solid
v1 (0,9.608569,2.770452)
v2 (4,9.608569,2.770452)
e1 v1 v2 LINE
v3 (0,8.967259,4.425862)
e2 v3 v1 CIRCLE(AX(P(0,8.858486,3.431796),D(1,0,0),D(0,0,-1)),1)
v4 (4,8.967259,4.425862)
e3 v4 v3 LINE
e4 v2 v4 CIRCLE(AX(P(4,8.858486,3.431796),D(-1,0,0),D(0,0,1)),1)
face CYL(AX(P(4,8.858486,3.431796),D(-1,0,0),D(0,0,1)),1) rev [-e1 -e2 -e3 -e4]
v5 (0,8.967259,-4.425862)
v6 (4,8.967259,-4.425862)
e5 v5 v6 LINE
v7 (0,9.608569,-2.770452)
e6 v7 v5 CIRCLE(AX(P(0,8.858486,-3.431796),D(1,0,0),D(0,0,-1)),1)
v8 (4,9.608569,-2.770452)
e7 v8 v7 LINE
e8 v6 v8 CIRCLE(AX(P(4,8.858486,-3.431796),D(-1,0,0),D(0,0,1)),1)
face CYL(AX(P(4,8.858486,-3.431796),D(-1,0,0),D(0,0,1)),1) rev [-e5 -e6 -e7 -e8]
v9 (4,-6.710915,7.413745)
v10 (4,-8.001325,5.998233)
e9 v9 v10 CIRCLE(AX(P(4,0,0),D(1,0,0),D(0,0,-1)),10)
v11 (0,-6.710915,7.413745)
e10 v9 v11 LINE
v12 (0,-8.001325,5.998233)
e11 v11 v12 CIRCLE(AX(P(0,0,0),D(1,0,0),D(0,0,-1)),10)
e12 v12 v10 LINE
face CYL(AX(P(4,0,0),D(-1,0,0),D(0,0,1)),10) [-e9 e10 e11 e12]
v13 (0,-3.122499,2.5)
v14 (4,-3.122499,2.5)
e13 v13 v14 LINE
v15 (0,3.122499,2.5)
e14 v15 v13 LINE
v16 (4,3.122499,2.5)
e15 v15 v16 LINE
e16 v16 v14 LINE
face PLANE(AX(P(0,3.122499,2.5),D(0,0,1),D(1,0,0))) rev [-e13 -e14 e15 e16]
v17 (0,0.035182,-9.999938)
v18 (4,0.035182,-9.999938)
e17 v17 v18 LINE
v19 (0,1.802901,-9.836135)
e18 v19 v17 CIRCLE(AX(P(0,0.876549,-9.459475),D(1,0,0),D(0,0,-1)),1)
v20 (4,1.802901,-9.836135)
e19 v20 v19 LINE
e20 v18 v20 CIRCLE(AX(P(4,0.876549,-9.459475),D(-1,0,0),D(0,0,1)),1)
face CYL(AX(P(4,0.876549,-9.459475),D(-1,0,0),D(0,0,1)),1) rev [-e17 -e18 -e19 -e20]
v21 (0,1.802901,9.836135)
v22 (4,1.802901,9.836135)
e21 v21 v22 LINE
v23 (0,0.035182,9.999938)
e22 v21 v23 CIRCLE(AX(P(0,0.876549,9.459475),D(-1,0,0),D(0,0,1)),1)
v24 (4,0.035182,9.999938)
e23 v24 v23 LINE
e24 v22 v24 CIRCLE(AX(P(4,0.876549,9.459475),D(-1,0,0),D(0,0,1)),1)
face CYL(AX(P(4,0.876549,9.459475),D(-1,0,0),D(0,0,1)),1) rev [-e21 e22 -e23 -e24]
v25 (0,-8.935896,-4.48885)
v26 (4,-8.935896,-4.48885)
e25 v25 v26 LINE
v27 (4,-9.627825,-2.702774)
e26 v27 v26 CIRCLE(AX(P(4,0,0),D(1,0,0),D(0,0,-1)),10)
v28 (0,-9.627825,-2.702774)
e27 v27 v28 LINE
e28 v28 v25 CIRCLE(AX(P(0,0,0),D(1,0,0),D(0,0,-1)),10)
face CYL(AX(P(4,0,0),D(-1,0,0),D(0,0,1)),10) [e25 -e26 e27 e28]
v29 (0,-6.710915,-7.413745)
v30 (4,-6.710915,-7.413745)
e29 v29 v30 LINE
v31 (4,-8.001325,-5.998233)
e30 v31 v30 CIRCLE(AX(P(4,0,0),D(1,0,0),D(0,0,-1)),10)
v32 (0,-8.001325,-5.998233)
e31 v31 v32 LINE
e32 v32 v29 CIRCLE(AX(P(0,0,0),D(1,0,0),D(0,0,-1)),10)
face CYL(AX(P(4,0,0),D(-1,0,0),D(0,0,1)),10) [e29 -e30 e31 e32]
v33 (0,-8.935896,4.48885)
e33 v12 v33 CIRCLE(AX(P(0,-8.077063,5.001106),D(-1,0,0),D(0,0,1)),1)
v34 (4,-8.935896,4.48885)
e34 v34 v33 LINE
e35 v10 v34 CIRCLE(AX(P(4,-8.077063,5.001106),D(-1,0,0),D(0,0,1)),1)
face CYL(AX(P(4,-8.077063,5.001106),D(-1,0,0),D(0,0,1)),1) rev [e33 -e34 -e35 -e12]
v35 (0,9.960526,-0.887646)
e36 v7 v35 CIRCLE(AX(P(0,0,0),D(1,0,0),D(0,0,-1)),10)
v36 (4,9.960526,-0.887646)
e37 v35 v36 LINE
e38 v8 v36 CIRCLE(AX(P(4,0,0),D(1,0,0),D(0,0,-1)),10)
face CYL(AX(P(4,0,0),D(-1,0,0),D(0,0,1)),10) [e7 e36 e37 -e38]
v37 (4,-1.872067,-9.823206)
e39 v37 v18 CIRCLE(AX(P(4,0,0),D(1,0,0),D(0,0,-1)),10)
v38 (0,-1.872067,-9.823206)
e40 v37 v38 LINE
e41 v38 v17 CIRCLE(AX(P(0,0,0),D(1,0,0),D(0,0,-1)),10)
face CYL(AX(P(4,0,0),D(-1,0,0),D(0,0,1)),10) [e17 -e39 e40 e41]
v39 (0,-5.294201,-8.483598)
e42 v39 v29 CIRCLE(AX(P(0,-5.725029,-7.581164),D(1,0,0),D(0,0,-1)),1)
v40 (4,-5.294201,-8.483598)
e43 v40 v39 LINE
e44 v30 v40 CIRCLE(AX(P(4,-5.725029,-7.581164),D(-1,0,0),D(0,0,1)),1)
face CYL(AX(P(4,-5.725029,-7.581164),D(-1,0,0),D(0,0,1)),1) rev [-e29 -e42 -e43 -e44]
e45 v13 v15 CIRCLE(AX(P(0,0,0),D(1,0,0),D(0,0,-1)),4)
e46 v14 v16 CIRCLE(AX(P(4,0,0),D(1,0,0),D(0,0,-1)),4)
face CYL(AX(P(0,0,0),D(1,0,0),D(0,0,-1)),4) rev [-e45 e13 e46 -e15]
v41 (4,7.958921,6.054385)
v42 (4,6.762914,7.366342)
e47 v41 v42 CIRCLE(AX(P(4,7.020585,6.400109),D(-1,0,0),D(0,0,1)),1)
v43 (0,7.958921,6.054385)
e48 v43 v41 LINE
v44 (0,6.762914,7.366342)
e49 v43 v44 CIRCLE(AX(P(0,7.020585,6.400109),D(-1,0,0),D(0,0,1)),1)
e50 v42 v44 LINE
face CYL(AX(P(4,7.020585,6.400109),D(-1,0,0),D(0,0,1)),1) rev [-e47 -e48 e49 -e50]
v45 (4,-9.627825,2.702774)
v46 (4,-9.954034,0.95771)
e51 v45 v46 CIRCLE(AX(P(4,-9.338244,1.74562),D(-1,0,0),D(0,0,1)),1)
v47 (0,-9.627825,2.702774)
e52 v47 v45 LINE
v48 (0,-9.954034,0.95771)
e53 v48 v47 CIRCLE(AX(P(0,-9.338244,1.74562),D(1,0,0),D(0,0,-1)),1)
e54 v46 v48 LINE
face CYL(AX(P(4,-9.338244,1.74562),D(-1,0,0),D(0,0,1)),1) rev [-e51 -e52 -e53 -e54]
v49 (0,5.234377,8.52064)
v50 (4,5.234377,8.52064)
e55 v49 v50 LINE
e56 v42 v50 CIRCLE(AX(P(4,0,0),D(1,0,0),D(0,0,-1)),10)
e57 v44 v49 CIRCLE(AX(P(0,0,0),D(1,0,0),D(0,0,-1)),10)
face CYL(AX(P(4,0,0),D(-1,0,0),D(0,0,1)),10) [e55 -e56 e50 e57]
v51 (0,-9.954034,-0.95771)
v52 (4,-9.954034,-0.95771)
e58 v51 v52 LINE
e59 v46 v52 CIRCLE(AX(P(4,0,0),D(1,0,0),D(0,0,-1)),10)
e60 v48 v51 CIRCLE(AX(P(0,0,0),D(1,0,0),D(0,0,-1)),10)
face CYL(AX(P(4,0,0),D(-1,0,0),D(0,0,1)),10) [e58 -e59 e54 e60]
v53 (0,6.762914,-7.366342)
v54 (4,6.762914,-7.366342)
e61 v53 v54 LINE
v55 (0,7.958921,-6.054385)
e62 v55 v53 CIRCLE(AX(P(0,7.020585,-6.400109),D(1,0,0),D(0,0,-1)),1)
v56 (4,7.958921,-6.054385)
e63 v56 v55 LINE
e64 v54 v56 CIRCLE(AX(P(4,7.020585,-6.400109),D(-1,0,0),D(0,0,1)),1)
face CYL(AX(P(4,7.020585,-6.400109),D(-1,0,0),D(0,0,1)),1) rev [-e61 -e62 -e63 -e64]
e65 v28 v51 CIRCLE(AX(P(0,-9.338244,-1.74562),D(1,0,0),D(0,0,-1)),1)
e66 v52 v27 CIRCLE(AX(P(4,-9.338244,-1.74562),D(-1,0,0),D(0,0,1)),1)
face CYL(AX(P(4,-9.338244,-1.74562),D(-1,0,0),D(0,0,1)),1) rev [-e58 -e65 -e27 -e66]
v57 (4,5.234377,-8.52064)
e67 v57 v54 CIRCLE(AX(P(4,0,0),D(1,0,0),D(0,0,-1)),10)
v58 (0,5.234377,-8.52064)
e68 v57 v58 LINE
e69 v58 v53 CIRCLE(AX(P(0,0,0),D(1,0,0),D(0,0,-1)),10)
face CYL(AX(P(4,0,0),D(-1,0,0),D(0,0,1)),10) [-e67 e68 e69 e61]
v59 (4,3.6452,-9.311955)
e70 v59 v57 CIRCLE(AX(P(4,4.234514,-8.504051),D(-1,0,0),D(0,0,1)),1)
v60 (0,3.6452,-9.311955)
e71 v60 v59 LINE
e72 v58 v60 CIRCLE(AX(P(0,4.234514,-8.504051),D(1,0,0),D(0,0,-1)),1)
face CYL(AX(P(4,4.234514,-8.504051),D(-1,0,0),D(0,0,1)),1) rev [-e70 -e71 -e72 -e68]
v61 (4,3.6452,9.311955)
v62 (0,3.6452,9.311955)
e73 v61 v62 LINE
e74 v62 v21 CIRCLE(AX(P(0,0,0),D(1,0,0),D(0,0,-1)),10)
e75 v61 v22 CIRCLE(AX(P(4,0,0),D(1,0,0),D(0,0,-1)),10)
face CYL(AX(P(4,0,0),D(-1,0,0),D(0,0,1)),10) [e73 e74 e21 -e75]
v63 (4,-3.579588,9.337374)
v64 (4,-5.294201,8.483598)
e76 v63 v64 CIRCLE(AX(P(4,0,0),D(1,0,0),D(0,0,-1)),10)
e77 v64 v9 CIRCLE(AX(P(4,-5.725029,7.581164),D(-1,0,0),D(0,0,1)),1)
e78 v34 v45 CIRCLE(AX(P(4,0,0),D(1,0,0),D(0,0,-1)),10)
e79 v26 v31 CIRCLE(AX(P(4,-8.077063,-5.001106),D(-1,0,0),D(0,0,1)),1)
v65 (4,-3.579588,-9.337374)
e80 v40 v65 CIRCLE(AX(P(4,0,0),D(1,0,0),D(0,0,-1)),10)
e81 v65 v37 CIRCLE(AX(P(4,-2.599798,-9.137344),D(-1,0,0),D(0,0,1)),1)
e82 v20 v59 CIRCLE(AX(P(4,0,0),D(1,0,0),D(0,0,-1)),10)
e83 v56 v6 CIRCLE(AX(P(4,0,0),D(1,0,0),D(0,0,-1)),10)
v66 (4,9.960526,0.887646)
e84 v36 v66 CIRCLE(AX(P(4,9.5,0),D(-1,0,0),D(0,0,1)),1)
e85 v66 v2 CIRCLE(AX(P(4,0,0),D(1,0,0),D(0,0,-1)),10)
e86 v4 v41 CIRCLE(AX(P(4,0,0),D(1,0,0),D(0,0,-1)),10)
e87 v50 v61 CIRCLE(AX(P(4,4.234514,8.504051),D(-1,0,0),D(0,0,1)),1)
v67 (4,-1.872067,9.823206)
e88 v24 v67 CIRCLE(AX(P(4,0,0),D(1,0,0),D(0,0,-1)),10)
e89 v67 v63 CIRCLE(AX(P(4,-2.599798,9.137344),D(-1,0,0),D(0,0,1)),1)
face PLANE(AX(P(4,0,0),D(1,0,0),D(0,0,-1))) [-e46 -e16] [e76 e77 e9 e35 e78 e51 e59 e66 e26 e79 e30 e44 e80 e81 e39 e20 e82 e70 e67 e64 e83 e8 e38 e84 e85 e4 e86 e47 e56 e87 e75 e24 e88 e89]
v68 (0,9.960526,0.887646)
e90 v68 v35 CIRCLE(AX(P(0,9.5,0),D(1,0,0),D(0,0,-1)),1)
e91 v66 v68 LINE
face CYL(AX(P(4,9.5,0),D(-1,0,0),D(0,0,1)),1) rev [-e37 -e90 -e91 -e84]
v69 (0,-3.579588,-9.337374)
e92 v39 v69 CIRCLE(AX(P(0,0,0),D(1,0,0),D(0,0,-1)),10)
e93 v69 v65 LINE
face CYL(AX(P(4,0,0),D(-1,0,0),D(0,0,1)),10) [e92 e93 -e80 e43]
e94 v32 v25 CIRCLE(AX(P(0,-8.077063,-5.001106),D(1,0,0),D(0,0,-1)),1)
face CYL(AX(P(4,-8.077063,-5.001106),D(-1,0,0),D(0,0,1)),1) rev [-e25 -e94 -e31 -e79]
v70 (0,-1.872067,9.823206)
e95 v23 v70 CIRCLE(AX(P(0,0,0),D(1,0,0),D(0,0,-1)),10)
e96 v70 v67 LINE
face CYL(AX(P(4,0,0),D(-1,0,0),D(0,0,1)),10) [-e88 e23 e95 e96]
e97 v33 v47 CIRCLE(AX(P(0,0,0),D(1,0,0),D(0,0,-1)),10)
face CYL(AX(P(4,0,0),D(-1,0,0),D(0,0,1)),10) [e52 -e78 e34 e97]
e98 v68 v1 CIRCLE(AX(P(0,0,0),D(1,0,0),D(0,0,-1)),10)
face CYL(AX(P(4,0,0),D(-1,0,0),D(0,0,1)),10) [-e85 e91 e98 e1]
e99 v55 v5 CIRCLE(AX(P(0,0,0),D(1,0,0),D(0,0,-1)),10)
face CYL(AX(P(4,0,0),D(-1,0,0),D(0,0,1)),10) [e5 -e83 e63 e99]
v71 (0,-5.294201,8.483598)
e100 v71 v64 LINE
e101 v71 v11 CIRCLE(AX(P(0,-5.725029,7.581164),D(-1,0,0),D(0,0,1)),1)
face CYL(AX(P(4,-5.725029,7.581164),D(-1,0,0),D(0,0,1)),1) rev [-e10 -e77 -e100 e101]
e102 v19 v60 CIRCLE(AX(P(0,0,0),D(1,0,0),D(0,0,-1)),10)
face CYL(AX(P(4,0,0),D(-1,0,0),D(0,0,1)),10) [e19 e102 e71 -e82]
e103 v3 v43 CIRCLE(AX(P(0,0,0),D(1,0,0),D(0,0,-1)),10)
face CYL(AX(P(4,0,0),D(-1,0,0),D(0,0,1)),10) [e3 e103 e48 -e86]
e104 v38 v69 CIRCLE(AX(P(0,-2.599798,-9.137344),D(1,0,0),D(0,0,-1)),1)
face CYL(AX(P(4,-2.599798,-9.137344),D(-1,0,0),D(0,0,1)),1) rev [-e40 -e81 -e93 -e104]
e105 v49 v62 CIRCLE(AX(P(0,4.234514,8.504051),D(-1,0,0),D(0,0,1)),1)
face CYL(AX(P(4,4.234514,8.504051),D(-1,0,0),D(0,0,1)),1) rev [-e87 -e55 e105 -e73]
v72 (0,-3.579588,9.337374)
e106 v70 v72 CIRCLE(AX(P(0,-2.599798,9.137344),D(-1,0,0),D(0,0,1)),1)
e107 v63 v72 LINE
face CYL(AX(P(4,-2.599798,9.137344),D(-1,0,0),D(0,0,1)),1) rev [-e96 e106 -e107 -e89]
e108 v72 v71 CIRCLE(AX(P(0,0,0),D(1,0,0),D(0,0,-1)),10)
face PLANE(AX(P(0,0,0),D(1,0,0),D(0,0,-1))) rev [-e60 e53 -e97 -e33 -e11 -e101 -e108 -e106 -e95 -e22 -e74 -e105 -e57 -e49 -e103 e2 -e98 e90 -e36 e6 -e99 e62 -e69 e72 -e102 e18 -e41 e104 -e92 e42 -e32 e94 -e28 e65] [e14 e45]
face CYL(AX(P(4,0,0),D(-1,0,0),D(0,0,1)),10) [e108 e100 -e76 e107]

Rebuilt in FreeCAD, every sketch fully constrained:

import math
import FreeCAD as App
import Part
import Sketcher

V = App.Vector

doc = App.newDocument("Part")
body = doc.addObject("PartDesign::Body", "Body")

# Sketch on YZ plane
sketch1 = body.newObject("Sketcher::SketchObject", "Sketch")
sketch1.AttachmentSupport = (doc.getObject("YZ_Plane"), [""])
sketch1.MapMode = "FlatFace"
sketch1.addGeometry(Part.Circle(V(0, 0, 0), V(0, 0, 1), 10), False)
sketch1.addConstraint([
    Sketcher.Constraint("Coincident", 0, 3, -1, 1),
    Sketcher.Constraint("Diameter", 0, 20.0),
])
pad1 = body.newObject("PartDesign::Pad", "Pad")
pad1.Profile = sketch1
pad1.Length = 4

# Sketch on YZ plane
sketch2 = body.newObject("Sketcher::SketchObject", "Sketch001")
sketch2.AttachmentSupport = (doc.getObject("YZ_Plane"), [""])
sketch2.MapMode = "FlatFace"
sketch2.addGeometry([
    Part.Circle(V(9.5, 0, 0), V(0, 0, 1), 1),  # 0
    Part.Circle(V(8.9, 3.4, 0), V(0, 0, 1), 1),  # 1
    Part.Circle(V(7, 6.4, 0), V(0, 0, 1), 1),  # 2
    Part.Circle(V(4.2, 8.5, 0), V(0, 0, 1), 1),  # 3
    Part.Circle(V(0.9, 9.5, 0), V(0, 0, 1), 1),  # 4
    Part.Circle(V(-2.6, 9.1, 0), V(0, 0, 1), 1),  # 5
    Part.Circle(V(-5.7, 7.6, 0), V(0, 0, 1), 1),  # 6
    Part.Circle(V(-8.1, 5, 0), V(0, 0, 1), 1),  # 7
    Part.Circle(V(-9.3, 1.7, 0), V(0, 0, 1), 1),  # 8
    Part.Circle(V(-9.3, -1.7, 0), V(0, 0, 1), 1),  # 9
    Part.Circle(V(-8.1, -5, 0), V(0, 0, 1), 1),  # 10
    Part.Circle(V(-5.7, -7.6, 0), V(0, 0, 1), 1),  # 11
    Part.Circle(V(-2.6, -9.1, 0), V(0, 0, 1), 1),  # 12
    Part.Circle(V(0.9, -9.5, 0), V(0, 0, 1), 1),  # 13
    Part.Circle(V(4.2, -8.5, 0), V(0, 0, 1), 1),  # 14
    Part.Circle(V(7, -6.4, 0), V(0, 0, 1), 1),  # 15
    Part.Circle(V(8.9, -3.4, 0), V(0, 0, 1), 1),  # 16
], False)
sketch2.addConstraint([
    Sketcher.Constraint("Equal", 0, 1),
    Sketcher.Constraint("Equal", 1, 2),
    Sketcher.Constraint("Equal", 2, 3),
    Sketcher.Constraint("Equal", 3, 4),
    Sketcher.Constraint("Equal", 4, 5),
    Sketcher.Constraint("Equal", 5, 6),
    Sketcher.Constraint("Equal", 6, 7),
    Sketcher.Constraint("Equal", 7, 8),
    Sketcher.Constraint("Equal", 8, 9),
    Sketcher.Constraint("Equal", 9, 10),
    Sketcher.Constraint("Equal", 10, 11),
    Sketcher.Constraint("Equal", 11, 12),
    Sketcher.Constraint("Equal", 12, 13),
    Sketcher.Constraint("Equal", 13, 14),
    Sketcher.Constraint("Equal", 14, 15),
    Sketcher.Constraint("Equal", 15, 16),
    Sketcher.Constraint("Symmetric", 8, 3, 9, 3, -1),
    Sketcher.Constraint("Symmetric", 7, 3, 10, 3, -1),
    Sketcher.Constraint("Symmetric", 6, 3, 11, 3, -1),
    Sketcher.Constraint("Symmetric", 5, 3, 12, 3, -1),
    Sketcher.Constraint("Symmetric", 4, 3, 13, 3, -1),
    Sketcher.Constraint("Symmetric", 3, 3, 14, 3, -1),
    Sketcher.Constraint("Symmetric", 2, 3, 15, 3, -1),
    Sketcher.Constraint("Symmetric", 1, 3, 16, 3, -1),
    Sketcher.Constraint("PointOnObject", 0, 3, -1),
    Sketcher.Constraint("Diameter", 0, 2.0),
    Sketcher.Constraint("DistanceX", -1, 1, 0, 3, 9.5),
    Sketcher.Constraint("DistanceX", 5, 3, -1, 1, 2.599798),
    Sketcher.Constraint("DistanceX", 2, 3, 1, 3, 1.837901),
    Sketcher.Constraint("DistanceY", -1, 1, 2, 3, 6.400109),
    Sketcher.Constraint("DistanceY", -1, 1, 3, 3, 8.504051),
    Sketcher.Constraint("DistanceX", -1, 1, 4, 3, 0.876549),
    Sketcher.Constraint("DistanceX", 6, 3, -1, 1, 5.725029),
    Sketcher.Constraint("DistanceY", -1, 1, 8, 3, 1.74562),
    Sketcher.Constraint("DistanceX", 3, 3, 2, 3, 2.78607),
    Sketcher.Constraint("DistanceY", 1, 3, 4, 3, 6.027679),
    Sketcher.Constraint("DistanceY", 5, 3, 4, 3, 0.322131),
    Sketcher.Constraint("DistanceY", 6, 3, 5, 3, 1.55618),
    Sketcher.Constraint("DistanceY", 7, 3, 6, 3, 2.580058),
    Sketcher.Constraint("DistanceX", 8, 3, 7, 3, 1.261182),
    Sketcher.Constraint("DistanceX", 8, 3, 3, 3, 13.572759),
    Sketcher.Constraint("DistanceY", 10, 3, 7, 3, 10.002211),
    Sketcher.Constraint("DistanceX", -1, 1, 1, 3, 8.858486),
])
pocket1 = body.newObject("PartDesign::Pocket", "Pocket")
pocket1.Profile = sketch2
pocket1.Length = 4
pocket1.Reversed = True

# Sketch on YZ plane
sketch3 = body.newObject("Sketcher::SketchObject", "Sketch002")
sketch3.AttachmentSupport = (doc.getObject("YZ_Plane"), [""])
sketch3.MapMode = "FlatFace"
sketch3.AttachmentOffset = App.Placement(V(0, 0, 4), App.Rotation())
sketch3.addGeometry([
    Part.LineSegment(V(3.1, 2.5, 0), V(-3.1, 2.5, 0)),
    Part.ArcOfCircle(Part.Circle(V(0, 0, 0), V(0, 0, 1), 4), math.radians(141), math.radians(399)),
], False)
sketch3.addConstraint([
    Sketcher.Constraint("Coincident", 0, 1, 1, 2),
    Sketcher.Constraint("Coincident", 1, 1, 0, 2),
    Sketcher.Constraint("Horizontal", 0),
    Sketcher.Constraint("Coincident", 1, 3, -1, 1),
    Sketcher.Constraint("Radius", 1, 4.0),
    Sketcher.Constraint("DistanceY", -1, 1, 0, 1, 2.5),
])
pocket2 = body.newObject("PartDesign::Pocket", "Pocket001")
pocket2.Profile = sketch3
pocket2.Length = 4

doc.recompute()
